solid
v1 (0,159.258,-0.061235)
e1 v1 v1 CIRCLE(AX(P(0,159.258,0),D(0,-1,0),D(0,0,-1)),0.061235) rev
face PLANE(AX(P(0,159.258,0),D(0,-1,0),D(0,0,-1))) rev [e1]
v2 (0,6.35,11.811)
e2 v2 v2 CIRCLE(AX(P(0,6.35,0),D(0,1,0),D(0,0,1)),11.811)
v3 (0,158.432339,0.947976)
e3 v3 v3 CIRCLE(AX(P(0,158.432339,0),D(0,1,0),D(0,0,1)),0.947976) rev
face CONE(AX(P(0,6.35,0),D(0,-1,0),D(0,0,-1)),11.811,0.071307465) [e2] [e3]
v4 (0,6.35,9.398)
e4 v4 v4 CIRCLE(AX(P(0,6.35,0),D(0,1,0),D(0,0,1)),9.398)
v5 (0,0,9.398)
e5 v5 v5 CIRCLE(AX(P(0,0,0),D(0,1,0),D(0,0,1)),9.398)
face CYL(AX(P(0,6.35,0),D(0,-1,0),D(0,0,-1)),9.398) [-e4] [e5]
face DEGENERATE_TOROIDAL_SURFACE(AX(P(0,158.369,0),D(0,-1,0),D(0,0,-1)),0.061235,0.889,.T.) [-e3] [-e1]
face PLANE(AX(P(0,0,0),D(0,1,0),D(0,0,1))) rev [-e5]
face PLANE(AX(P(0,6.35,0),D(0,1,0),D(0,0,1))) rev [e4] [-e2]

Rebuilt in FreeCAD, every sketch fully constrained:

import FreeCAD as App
import Part
import Sketcher
from FreeCAD import Vector
Q = App.Units.Quantity


def edges_at(feature, points):
    """Names of the edges that pass closest to the given points."""
    edges = feature.Shape.Edges
    near = lambda p: min(range(len(edges)), key=lambda i: edges[i].distToShape(Part.Vertex(*p))[0])
    return sorted({f"Edge{near(p) + 1}" for p in points})


def add_polygon(sketch, points):
    """Adds a closed chain of lines whose ends are joined by coincident constraints."""
    first, n = sketch.GeometryCount, len(points)
    for a, b in zip(points, points[1:] + points[:1]):
        sketch.addGeometry(Part.LineSegment(App.Vector(*a, 0), App.Vector(*b, 0)), False)
    for i in range(n):
        sketch.addConstraint(Sketcher.Constraint("Coincident", first + i, 2, first + (i + 1) % n, 1))

doc = App.newDocument("Part")
body = doc.addObject("PartDesign::Body", "Body")

sketch1 = doc.addObject("Sketcher::SketchObject", "Sketch")
body.addObject(sketch1)
sketch1.AttachmentSupport = (doc.XZ_Plane, [""])
sketch1.MapMode = "FlatFace"
sketch1.addGeometry(Part.Circle(Vector(0, 0, 0), Vector(0, 0, 1), 9), False)
sketch1.addConstraint([
    Sketcher.Constraint("Coincident", 0, 3, -1, 1),
    Sketcher.Constraint("Diameter", 0, Q("0.74 in")),
])
pad1 = doc.addObject("PartDesign::Pad", "Pad")
body.addObject(pad1)
pad1.Profile = sketch1
pad1.Length = Q("0.25 in")
pad1.Reversed = True

sketch2 = doc.addObject("Sketcher::SketchObject", "Sketch001")
body.addObject(sketch2)
sketch2.AttachmentSupport = (doc.XY_Plane, [""])
sketch2.MapMode = "FlatFace"
add_polygon(sketch2, [(11.8, 6.3), (0.9, 159.3), (0, 159.3), (0, 6.3)])
sketch2.addConstraint([
    Sketcher.Constraint("Horizontal", 1),
    Sketcher.Constraint("Vertical", 2),
    Sketcher.Constraint("Horizontal", 3),
    Sketcher.Constraint("PointOnObject", 1, 2, -2),
    Sketcher.Constraint("DistanceY", 2, 2, 2, 1, Q("6.02 in")),
    Sketcher.Constraint("DistanceX", 1, 2, 1, 1, Q("0.035 in")),
    Sketcher.Constraint("DistanceX", 3, 1, 3, 2, Q("0.465 in")),
    Sketcher.Constraint("DistanceY", -1, 1, 0, 2, Q("6.27 in")),
])
revolution = doc.addObject("PartDesign::Revolution", "Revolution")
body.addObject(revolution)
revolution.Profile = sketch2
revolution.ReferenceAxis = (sketch2, ["V_Axis"])
revolution.Angle = 360
doc.recompute()

fillet = doc.addObject("PartDesign::Fillet", "Fillet")
body.addObject(fillet)
fillet.Base = (revolution, edges_at(revolution, [(-0.889, 159.258, 0)]))
fillet.Radius = Q("0.035 in")

doc.recompute()
